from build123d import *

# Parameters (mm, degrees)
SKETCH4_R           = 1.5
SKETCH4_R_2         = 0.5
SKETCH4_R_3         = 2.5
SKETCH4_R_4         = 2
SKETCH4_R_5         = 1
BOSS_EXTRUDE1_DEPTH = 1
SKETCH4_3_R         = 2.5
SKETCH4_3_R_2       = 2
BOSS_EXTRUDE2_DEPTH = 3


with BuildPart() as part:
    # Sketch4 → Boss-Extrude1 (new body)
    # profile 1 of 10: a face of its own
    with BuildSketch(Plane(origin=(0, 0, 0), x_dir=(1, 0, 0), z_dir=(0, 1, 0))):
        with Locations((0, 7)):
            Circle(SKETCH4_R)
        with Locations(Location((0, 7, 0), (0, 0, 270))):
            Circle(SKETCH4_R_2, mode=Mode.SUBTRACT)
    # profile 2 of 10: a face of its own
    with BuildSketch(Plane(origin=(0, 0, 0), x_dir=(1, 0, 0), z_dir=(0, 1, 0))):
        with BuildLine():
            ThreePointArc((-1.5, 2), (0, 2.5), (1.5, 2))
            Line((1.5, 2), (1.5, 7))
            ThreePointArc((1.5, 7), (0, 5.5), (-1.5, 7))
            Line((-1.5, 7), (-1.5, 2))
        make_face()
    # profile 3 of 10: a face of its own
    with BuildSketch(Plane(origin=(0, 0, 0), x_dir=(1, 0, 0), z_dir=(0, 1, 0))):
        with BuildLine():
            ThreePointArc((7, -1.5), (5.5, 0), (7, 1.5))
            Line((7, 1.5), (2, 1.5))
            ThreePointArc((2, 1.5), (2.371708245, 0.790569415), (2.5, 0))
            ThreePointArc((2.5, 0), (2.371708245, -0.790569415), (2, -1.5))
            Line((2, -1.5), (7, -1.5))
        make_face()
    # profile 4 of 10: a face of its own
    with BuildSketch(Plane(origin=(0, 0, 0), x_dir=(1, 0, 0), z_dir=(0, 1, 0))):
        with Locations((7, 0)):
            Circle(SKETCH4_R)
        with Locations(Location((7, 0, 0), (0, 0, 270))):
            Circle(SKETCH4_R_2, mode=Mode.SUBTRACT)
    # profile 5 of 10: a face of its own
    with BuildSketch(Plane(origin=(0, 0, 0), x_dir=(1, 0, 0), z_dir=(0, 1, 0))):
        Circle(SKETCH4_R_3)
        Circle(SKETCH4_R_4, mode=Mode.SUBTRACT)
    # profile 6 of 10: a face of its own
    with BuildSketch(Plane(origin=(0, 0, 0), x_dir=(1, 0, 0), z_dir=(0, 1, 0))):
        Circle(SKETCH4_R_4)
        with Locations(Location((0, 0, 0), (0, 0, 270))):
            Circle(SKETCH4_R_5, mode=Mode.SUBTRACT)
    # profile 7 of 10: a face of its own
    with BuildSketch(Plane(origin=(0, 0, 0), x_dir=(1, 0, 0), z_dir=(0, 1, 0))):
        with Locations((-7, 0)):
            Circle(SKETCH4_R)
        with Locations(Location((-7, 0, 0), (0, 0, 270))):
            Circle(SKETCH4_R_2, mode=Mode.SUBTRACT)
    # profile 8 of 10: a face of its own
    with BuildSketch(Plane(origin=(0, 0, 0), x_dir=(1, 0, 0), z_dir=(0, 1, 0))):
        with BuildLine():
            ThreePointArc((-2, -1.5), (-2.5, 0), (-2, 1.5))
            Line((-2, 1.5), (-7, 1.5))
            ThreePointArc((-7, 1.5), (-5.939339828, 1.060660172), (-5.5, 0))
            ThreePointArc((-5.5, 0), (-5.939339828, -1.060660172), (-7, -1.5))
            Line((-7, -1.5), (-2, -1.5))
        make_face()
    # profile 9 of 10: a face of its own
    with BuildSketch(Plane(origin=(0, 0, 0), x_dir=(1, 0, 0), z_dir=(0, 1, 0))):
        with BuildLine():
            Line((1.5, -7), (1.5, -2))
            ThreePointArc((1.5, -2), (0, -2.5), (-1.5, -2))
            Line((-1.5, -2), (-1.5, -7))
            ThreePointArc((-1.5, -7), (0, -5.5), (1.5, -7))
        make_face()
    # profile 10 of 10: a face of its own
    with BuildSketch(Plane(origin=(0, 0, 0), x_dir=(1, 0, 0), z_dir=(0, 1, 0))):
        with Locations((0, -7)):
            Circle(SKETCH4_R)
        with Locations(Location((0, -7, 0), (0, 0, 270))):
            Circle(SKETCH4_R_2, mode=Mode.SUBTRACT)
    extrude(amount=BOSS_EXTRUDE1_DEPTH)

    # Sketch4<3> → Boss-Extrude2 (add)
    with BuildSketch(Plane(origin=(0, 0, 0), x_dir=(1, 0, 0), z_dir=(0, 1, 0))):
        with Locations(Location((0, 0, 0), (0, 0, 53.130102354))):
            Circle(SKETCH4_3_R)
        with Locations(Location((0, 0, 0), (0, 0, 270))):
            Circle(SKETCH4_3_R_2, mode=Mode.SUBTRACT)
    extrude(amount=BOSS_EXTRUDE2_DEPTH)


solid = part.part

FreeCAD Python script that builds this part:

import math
import FreeCAD as App
import Part
import Sketcher
from FreeCAD import Vector

doc = App.newDocument("Part")
params = doc.addObject("Spreadsheet::Sheet", "Params")
for row, (alias, value) in enumerate([
    ("sketch1_diameter", "1 mm"),
    ("sketch1_diameter2", "2 mm"),
    ("sketch1_radius", "1.5 mm"),
    ("sketch1_radius2", "2.5 mm"),
    ("sketch1_width", "5 mm"),
    ("pad1_length", "1 mm"),
    ("sketch2_diameter", "5 mm"),
    ("sketch2_diameter2", "4 mm"),
    ("pad2_length", "3 mm"),
], start=1):
    params.set(f"A{row}", alias)
    params.set(f"B{row}", "=" + value)
    params.setAlias(f"B{row}", alias)

body = doc.addObject("PartDesign::Body", "Body")

# Sketch on XZ plane
sketch1 = body.newObject("Sketcher::SketchObject", "Sketch")
sketch1.AttachmentSupport = (doc.getObject("XZ_Plane"), [""])
sketch1.MapMode = "FlatFace"
sketch1.addGeometry([
    Part.ArcOfCircle(Part.Circle(Vector(0, -7, 0), Vector(0, 0, 1), 1.5), math.radians(180), math.radians(360)),  # 0
    Part.LineSegment(Vector(-1.5, -7, 0), Vector(-1.5, -2, 0)),  # 1
    Part.ArcOfCircle(Part.Circle(Vector(0, 0, 0), Vector(0, 0, 1), 2.5), math.radians(-143.13), math.radians(-126.87)),  # 2
    Part.LineSegment(Vector(-2, -1.5, 0), Vector(-7, -1.5, 0)),  # 3
    Part.ArcOfCircle(Part.Circle(Vector(-7, 0, 0), Vector(0, 0, 1), 1.5), math.radians(90), math.radians(270)),  # 4
    Part.LineSegment(Vector(-7, 1.5, 0), Vector(-2, 1.5, 0)),  # 5
    Part.ArcOfCircle(Part.Circle(Vector(0, 0, 0), Vector(0, 0, 1), 2.5), math.radians(126.87), math.radians(143.13)),  # 6
    Part.LineSegment(Vector(-1.5, 2, 0), Vector(-1.5, 7, 0)),  # 7
    Part.ArcOfCircle(Part.Circle(Vector(0, 7, 0), Vector(0, 0, 1), 1.5), math.radians(0), math.radians(180)),  # 8
    Part.LineSegment(Vector(1.5, 7, 0), Vector(1.5, 2, 0)),  # 9
    Part.ArcOfCircle(Part.Circle(Vector(0, 0, 0), Vector(0, 0, 1), 2.5), math.radians(36.87), math.radians(53.13)),  # 10
    Part.LineSegment(Vector(2, 1.5, 0), Vector(7, 1.5, 0)),  # 11
    Part.ArcOfCircle(Part.Circle(Vector(7, 0, 0), Vector(0, 0, 1), 1.5), math.radians(-90), math.radians(90)),  # 12
    Part.LineSegment(Vector(7, -1.5, 0), Vector(2, -1.5, 0)),  # 13
    Part.ArcOfCircle(Part.Circle(Vector(0, 0, 0), Vector(0, 0, 1), 2.5), math.radians(-53.13), math.radians(-36.87)),  # 14
    Part.LineSegment(Vector(1.5, -2, 0), Vector(1.5, -7, 0)),  # 15
    Part.Circle(Vector(0, -7, 0), Vector(0, 0, 1), 0.5),  # 16
    Part.Circle(Vector(0, 0, 0), Vector(0, 0, 1), 1),  # 17
    Part.Circle(Vector(7, 0, 0), Vector(0, 0, 1), 0.5),  # 18
    Part.Circle(Vector(-7, 0, 0), Vector(0, 0, 1), 0.5),  # 19
    Part.Circle(Vector(0, 7, 0), Vector(0, 0, 1), 0.5),  # 20
], False)
sketch1.addConstraint([
    Sketcher.Constraint("Tangent", 0, 1, 1, 1),
    Sketcher.Constraint("Coincident", 1, 2, 2, 2),
    Sketcher.Constraint("Coincident", 2, 1, 3, 1),
    Sketcher.Constraint("Tangent", 3, 2, 4, 2),
    Sketcher.Constraint("Tangent", 4, 1, 5, 1),
    Sketcher.Constraint("Coincident", 5, 2, 6, 2),
    Sketcher.Constraint("Coincident", 6, 1, 7, 1),
    Sketcher.Constraint("Tangent", 7, 2, 8, 2),
    Sketcher.Constraint("Tangent", 8, 1, 9, 1),
    Sketcher.Constraint("Coincident", 9, 2, 10, 2),
    Sketcher.Constraint("Coincident", 10, 1, 11, 1),
    Sketcher.Constraint("Tangent", 11, 2, 12, 2),
    Sketcher.Constraint("Tangent", 12, 1, 13, 1),
    Sketcher.Constraint("Coincident", 13, 2, 14, 2),
    Sketcher.Constraint("Coincident", 14, 1, 15, 1),
    Sketcher.Constraint("Tangent", 15, 2, 0, 2),
    Sketcher.Constraint("Vertical", 1),
    Sketcher.Constraint("Horizontal", 3),
    Sketcher.Constraint("Horizontal", 5),
    Sketcher.Constraint("Vertical", 7),
    Sketcher.Constraint("Vertical", 9),
    Sketcher.Constraint("Horizontal", 11),
    Sketcher.Constraint("Horizontal", 13),
    Sketcher.Constraint("Vertical", 15),
    Sketcher.Constraint("Coincident", 2, 3, -1, 1),
    Sketcher.Constraint("Coincident", 6, 3, -1, 1),
    Sketcher.Constraint("Coincident", 10, 3, -1, 1),
    Sketcher.Constraint("Coincident", 14, 3, -1, 1),
    Sketcher.Constraint("Coincident", 17, 3, -1, 1),
    Sketcher.Constraint("Coincident", 16, 3, 0, 3),
    Sketcher.Constraint("Coincident", 18, 3, 12, 3),
    Sketcher.Constraint("Coincident", 19, 3, 4, 3),
    Sketcher.Constraint("Coincident", 20, 3, 8, 3),
    Sketcher.Constraint("Equal", 0, 4),
    Sketcher.Constraint("Equal", 2, 6),
    Sketcher.Constraint("Equal", 4, 8),
    Sketcher.Constraint("Equal", 6, 10),
    Sketcher.Constraint("Equal", 8, 12),
    Sketcher.Constraint("Equal", 10, 14),
    Sketcher.Constraint("Equal", 16, 18),
    Sketcher.Constraint("Equal", 18, 19),
    Sketcher.Constraint("Equal", 19, 20),
    Sketcher.Constraint("Symmetric", 0, 3, 8, 3, -1, 1),
    Sketcher.Constraint("Symmetric", 4, 3, 12, 3, -1, 1),
    Sketcher.Constraint("PointOnObject", 0, 3, -2),
    Sketcher.Constraint("PointOnObject", 4, 3, -1),
    Sketcher.Constraint("Equal", 13, 1),
    Sketcher.Constraint("Diameter", 16, 1.0),
    Sketcher.Constraint("Diameter", 17, 2.0),
    Sketcher.Constraint("Radius", 0, 1.5),
    Sketcher.Constraint("Radius", 2, 2.5),
    Sketcher.Constraint("DistanceX", 3, 2, 3, 1, 5.0),
])
sketch1.setExpression("Constraints[47]", "Params.sketch1_diameter")
sketch1.setExpression("Constraints[48]", "Params.sketch1_diameter2")
sketch1.setExpression("Constraints[49]", "Params.sketch1_radius")
sketch1.setExpression("Constraints[50]", "Params.sketch1_radius2")
sketch1.setExpression("Constraints[51]", "Params.sketch1_width")
pad1 = body.newObject("PartDesign::Pad", "Pad")
pad1.Profile = sketch1
pad1.setExpression("Length", "Params.pad1_length")
pad1.Reversed = True

# Sketch on XZ plane
sketch2 = body.newObject("Sketcher::SketchObject", "Sketch001")
sketch2.AttachmentSupport = (doc.getObject("XZ_Plane"), [""])
sketch2.MapMode = "FlatFace"
sketch2.addGeometry([
    Part.Circle(Vector(0, 0, 0), Vector(0, 0, 1), 2.5),
    Part.Circle(Vector(0, 0, 0), Vector(0, 0, 1), 2),
], False)
sketch2.addConstraint([
    Sketcher.Constraint("Coincident", 0, 3, -1, 1),
    Sketcher.Constraint("Coincident", 1, 3, -1, 1),
    Sketcher.Constraint("Diameter", 0, 5.0),
    Sketcher.Constraint("Diameter", 1, 4.0),
])
sketch2.setExpression("Constraints[2]", "Params.sketch2_diameter")
sketch2.setExpression("Constraints[3]", "Params.sketch2_diameter2")
pad2 = body.newObject("PartDesign::Pad", "Pad001")
pad2.Profile = sketch2
pad2.setExpression("Length", "Params.pad2_length")
pad2.Reversed = True

doc.recompute()
